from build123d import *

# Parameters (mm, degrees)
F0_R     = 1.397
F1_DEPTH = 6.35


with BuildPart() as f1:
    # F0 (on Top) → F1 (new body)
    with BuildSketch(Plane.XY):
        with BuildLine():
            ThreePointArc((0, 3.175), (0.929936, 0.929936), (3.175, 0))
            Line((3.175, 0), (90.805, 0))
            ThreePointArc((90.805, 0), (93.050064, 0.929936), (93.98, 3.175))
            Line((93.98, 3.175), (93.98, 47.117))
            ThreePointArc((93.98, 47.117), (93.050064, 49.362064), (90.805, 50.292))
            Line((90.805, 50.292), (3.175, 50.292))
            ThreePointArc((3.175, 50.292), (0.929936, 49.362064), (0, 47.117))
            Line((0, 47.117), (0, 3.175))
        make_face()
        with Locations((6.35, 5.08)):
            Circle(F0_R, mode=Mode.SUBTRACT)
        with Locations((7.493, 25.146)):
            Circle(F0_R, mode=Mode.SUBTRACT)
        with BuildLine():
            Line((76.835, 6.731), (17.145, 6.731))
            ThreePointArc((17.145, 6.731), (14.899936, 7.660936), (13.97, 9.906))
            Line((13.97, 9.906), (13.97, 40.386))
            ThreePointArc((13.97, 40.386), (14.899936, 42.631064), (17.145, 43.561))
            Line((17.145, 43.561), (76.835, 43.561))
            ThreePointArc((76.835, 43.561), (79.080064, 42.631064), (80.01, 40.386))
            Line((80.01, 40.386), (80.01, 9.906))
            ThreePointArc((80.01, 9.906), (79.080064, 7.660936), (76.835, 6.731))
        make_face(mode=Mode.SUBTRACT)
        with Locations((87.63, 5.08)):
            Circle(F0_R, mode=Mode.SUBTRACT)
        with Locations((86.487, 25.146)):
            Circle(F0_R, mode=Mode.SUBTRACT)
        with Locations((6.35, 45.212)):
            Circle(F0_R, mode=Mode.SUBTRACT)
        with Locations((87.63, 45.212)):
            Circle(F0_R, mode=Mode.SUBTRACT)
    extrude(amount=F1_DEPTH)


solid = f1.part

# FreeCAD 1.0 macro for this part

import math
import FreeCAD as App
import Part
import Sketcher
from FreeCAD import Vector
Q = App.Units.Quantity

doc = App.newDocument("Part")
body = doc.addObject("PartDesign::Body", "Body")

# Sketch on XY plane
sketch1 = body.newObject("Sketcher::SketchObject", "Sketch")
sketch1.AttachmentSupport = (doc.getObject("XY_Plane"), [""])
sketch1.MapMode = "FlatFace"
sketch1.addGeometry(Part.ArcOfCircle(Part.Circle(Vector(3.175, 3.175, 0), Vector(0, 0, 1), 3.175), math.radians(-179.999998), math.radians(-90.000002)), False)
sketch1.addGeometry(Part.LineSegment(Vector(3.175, 0, 0), Vector(90.805, 0, 0)), False)
sketch1.addGeometry(Part.ArcOfCircle(Part.Circle(Vector(90.805, 3.175, 0), Vector(0, 0, 1), 3.175), math.radians(-89.999998), math.radians(-0.000002)), False)
sketch1.addGeometry(Part.LineSegment(Vector(93.98, 3.175, 0), Vector(93.98, 47.117, 0)), False)
sketch1.addGeometry(Part.ArcOfCircle(Part.Circle(Vector(90.805, 47.117, 0), Vector(0, 0, 1), 3.175), math.radians(0.000002), math.radians(89.999998)), False)
sketch1.addGeometry(Part.LineSegment(Vector(90.805, 50.292, 0), Vector(3.175, 50.292, 0)), False)
sketch1.addGeometry(Part.ArcOfCircle(Part.Circle(Vector(3.175, 47.117, 0), Vector(0, 0, 1), 3.175), math.radians(90.000002), math.radians(179.999998)), False)
sketch1.addGeometry(Part.LineSegment(Vector(0, 47.117, 0), Vector(0, 3.175, 0)), False)
sketch1.addGeometry(Part.Circle(Vector(6.35, 5.08, 0), Vector(0, 0, 1), 1.397), False)
sketch1.addGeometry(Part.Circle(Vector(87.63, 5.08, 0), Vector(0, 0, 1), 1.397), False)
sketch1.addGeometry(Part.Circle(Vector(7.493, 25.146, 0), Vector(0, 0, 1), 1.397), False)
sketch1.addGeometry(Part.Circle(Vector(6.35, 45.212, 0), Vector(0, 0, 1), 1.397), False)
sketch1.addGeometry(Part.ArcOfCircle(Part.Circle(Vector(76.835, 9.906, 0), Vector(0, 0, 1), 3.175), math.radians(-89.999998), math.radians(-0.000002)), False)
sketch1.addGeometry(Part.LineSegment(Vector(76.835, 6.731, 0), Vector(17.145, 6.731, 0)), False)
sketch1.addGeometry(Part.ArcOfCircle(Part.Circle(Vector(17.145, 9.906, 0), Vector(0, 0, 1), 3.175), math.radians(-179.999998), math.radians(-90.000002)), False)
sketch1.addGeometry(Part.LineSegment(Vector(13.97, 9.906, 0), Vector(13.97, 40.386, 0)), False)
sketch1.addGeometry(Part.ArcOfCircle(Part.Circle(Vector(17.145, 40.386, 0), Vector(0, 0, 1), 3.175), math.radians(90.000002), math.radians(179.999998)), False)
sketch1.addGeometry(Part.LineSegment(Vector(17.145, 43.561, 0), Vector(76.835, 43.561, 0)), False)
sketch1.addGeometry(Part.ArcOfCircle(Part.Circle(Vector(76.835, 40.386, 0), Vector(0, 0, 1), 3.175), math.radians(0.000002), math.radians(89.999998)), False)
sketch1.addGeometry(Part.LineSegment(Vector(80.01, 40.386, 0), Vector(80.01, 9.906, 0)), False)
sketch1.addGeometry(Part.Circle(Vector(86.487, 25.146, 0), Vector(0, 0, 1), 1.397), False)
sketch1.addGeometry(Part.Circle(Vector(87.63, 45.212, 0), Vector(0, 0, 1), 1.397), False)
sketch1.addConstraint(Sketcher.Constraint("Tangent", 0, 2, 1, 1))
sketch1.addConstraint(Sketcher.Constraint("Tangent", 1, 2, 2, 1))
sketch1.addConstraint(Sketcher.Constraint("Tangent", 2, 2, 3, 1))
sketch1.addConstraint(Sketcher.Constraint("Tangent", 3, 2, 4, 1))
sketch1.addConstraint(Sketcher.Constraint("Tangent", 4, 2, 5, 1))
sketch1.addConstraint(Sketcher.Constraint("Tangent", 5, 2, 6, 1))
sketch1.addConstraint(Sketcher.Constraint("Tangent", 6, 2, 7, 1))
sketch1.addConstraint(Sketcher.Constraint("Tangent", 7, 2, 0, 1))
sketch1.addConstraint(Sketcher.Constraint("Tangent", 12, 1, 13, 1))
sketch1.addConstraint(Sketcher.Constraint("Tangent", 13, 2, 14, 2))
sketch1.addConstraint(Sketcher.Constraint("Tangent", 14, 1, 15, 1))
sketch1.addConstraint(Sketcher.Constraint("Tangent", 15, 2, 16, 2))
sketch1.addConstraint(Sketcher.Constraint("Tangent", 16, 1, 17, 1))
sketch1.addConstraint(Sketcher.Constraint("Tangent", 17, 2, 18, 2))
sketch1.addConstraint(Sketcher.Constraint("Tangent", 18, 1, 19, 1))
sketch1.addConstraint(Sketcher.Constraint("Tangent", 19, 2, 12, 2))
sketch1.addConstraint(Sketcher.Constraint("Horizontal", 1))
sketch1.addConstraint(Sketcher.Constraint("Vertical", 3))
sketch1.addConstraint(Sketcher.Constraint("Horizontal", 5))
sketch1.addConstraint(Sketcher.Constraint("Vertical", 7))
sketch1.addConstraint(Sketcher.Constraint("Horizontal", 13))
sketch1.addConstraint(Sketcher.Constraint("Vertical", 15))
sketch1.addConstraint(Sketcher.Constraint("Horizontal", 17))
sketch1.addConstraint(Sketcher.Constraint("Vertical", 19))
sketch1.addConstraint(Sketcher.Constraint("Equal", 0, 2))
sketch1.addConstraint(Sketcher.Constraint("Equal", 2, 4))
sketch1.addConstraint(Sketcher.Constraint("Equal", 4, 6))
sketch1.addConstraint(Sketcher.Constraint("Equal", 8, 9))
sketch1.addConstraint(Sketcher.Constraint("Equal", 9, 10))
sketch1.addConstraint(Sketcher.Constraint("Equal", 10, 11))
sketch1.addConstraint(Sketcher.Constraint("Equal", 6, 12))
sketch1.addConstraint(Sketcher.Constraint("Equal", 12, 14))
sketch1.addConstraint(Sketcher.Constraint("Equal", 14, 16))
sketch1.addConstraint(Sketcher.Constraint("Equal", 16, 18))
sketch1.addConstraint(Sketcher.Constraint("Equal", 11, 20))
sketch1.addConstraint(Sketcher.Constraint("Equal", 20, 21))
sketch1.addConstraint(Sketcher.Constraint("PointOnObject", 0, 2, -1))
sketch1.addConstraint(Sketcher.Constraint("PointOnObject", 6, 2, -2))
sketch1.addConstraint(Sketcher.Constraint("Horizontal", 8, 3, 9, 3))
sketch1.addConstraint(Sketcher.Constraint("Horizontal", 10, 3, 20, 3))
sketch1.addConstraint(Sketcher.Constraint("Horizontal", 11, 3, 21, 3))
sketch1.addConstraint(Sketcher.Constraint("Vertical", 8, 3, 11, 3))
sketch1.addConstraint(Sketcher.Constraint("Vertical", 9, 3, 21, 3))
sketch1.addConstraint(Sketcher.Constraint("Diameter", 8, Q("0.11 in")))
sketch1.addConstraint(Sketcher.Constraint("DistanceY", 15, 1, 15, 2, Q("1.2 in")))
sketch1.addConstraint(Sketcher.Constraint("Radius", 0, Q("0.125 in")))
sketch1.addConstraint(Sketcher.Constraint("DistanceX", 1, 1, 1, 2, Q("3.45 in")))
sketch1.addConstraint(Sketcher.Constraint("DistanceX", 13, 2, 13, 1, Q("2.35 in")))
sketch1.addConstraint(Sketcher.Constraint("DistanceY", 3, 1, 3, 2, Q("1.73 in")))
sketch1.addConstraint(Sketcher.Constraint("DistanceY", -1, 1, 8, 3, Q("0.2 in")))
sketch1.addConstraint(Sketcher.Constraint("DistanceX", 8, 3, 9, 3, Q("3.2 in")))
sketch1.addConstraint(Sketcher.Constraint("DistanceY", 12, 3, 10, 3, Q("0.6 in")))
sketch1.addConstraint(Sketcher.Constraint("DistanceY", 21, 3, 4, 2, Q("0.2 in")))
sketch1.addConstraint(Sketcher.Constraint("DistanceX", 8, 3, 14, 1, Q("0.3 in")))
sketch1.addConstraint(Sketcher.Constraint("DistanceX", -1, 1, 8, 3, Q("0.25 in")))
sketch1.addConstraint(Sketcher.Constraint("DistanceY", -1, 1, 10, 3, Q("0.99 in")))
sketch1.addConstraint(Sketcher.Constraint("DistanceX", 6, 3, 10, 3, Q("0.17 in")))
sketch1.addConstraint(Sketcher.Constraint("DistanceX", 18, 3, 20, 3, Q("0.38 in")))
pad1 = body.newObject("PartDesign::Pad", "Pad")
pad1.Profile = sketch1
pad1.Length = Q("0.25 in")

doc.recompute()
